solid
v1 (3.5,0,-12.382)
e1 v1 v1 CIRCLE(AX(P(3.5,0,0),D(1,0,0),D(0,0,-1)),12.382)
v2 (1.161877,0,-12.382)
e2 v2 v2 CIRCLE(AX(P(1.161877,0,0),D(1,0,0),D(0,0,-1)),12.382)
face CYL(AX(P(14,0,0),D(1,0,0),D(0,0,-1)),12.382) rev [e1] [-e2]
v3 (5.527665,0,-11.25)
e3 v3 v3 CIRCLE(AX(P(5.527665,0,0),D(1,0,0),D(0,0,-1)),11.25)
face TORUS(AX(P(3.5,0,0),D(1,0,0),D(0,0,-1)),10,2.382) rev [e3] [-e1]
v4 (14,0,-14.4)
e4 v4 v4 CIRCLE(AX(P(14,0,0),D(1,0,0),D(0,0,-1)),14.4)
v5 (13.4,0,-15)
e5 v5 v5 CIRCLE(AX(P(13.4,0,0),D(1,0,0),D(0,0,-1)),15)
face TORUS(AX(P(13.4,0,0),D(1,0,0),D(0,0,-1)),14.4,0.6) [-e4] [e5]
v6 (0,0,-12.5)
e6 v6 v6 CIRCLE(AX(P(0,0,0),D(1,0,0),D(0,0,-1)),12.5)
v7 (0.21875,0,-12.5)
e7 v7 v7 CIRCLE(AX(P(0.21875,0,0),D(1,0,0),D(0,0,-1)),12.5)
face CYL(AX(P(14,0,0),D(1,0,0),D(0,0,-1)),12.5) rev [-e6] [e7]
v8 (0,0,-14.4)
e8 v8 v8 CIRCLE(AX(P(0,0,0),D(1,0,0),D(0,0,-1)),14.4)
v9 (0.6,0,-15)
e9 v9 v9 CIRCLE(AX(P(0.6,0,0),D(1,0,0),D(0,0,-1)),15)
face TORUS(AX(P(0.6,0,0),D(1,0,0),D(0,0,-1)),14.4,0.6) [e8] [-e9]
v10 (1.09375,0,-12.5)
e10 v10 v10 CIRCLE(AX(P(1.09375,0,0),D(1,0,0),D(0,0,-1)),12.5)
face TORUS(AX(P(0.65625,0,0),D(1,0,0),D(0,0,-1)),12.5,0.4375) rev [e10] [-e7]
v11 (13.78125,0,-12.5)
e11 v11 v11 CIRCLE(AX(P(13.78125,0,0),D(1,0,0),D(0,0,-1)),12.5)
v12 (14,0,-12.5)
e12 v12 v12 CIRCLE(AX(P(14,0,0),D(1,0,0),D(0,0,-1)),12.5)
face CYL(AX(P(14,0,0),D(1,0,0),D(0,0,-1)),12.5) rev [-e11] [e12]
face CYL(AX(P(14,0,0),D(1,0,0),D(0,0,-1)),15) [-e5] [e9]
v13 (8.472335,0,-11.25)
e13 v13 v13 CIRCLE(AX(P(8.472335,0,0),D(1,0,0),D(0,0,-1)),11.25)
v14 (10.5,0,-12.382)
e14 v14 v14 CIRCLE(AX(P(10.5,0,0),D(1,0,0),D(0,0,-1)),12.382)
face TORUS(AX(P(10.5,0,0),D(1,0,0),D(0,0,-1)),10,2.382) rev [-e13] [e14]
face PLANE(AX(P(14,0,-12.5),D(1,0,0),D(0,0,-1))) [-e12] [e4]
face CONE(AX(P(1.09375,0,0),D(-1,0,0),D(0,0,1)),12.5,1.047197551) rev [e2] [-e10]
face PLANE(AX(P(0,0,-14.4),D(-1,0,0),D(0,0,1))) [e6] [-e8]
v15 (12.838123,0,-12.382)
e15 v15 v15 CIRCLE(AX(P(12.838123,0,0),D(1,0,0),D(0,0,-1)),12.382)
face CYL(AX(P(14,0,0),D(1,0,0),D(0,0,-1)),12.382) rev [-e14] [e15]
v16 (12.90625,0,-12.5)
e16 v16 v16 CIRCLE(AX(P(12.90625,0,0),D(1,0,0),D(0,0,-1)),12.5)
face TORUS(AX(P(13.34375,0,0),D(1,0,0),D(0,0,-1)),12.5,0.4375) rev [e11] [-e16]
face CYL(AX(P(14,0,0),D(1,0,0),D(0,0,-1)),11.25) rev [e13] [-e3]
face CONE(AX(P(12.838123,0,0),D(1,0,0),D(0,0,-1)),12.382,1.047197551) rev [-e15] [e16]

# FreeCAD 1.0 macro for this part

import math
import FreeCAD as App
import Part
import Sketcher
from FreeCAD import Vector
Q = App.Units.Quantity

doc = App.newDocument("Part")
body = doc.addObject("PartDesign::Body", "Body")

sketch1 = body.newObject("Sketcher::SketchObject", "Sketch")
sketch1.AttachmentSupport = (doc.getObject("XZ_Plane"), [""])
sketch1.MapMode = "FlatFace"
sketch1.addGeometry(Part.LineSegment(Vector(0, -12.5, 0), Vector(0.22, -12.5, 0)), False)
sketch1.addGeometry(Part.ArcOfCircle(Part.Circle(Vector(0.66, -12.5, 0), Vector(0, 0, 1), 0.44), math.radians(180), math.radians(360)), False)
sketch1.addGeometry(Part.LineSegment(Vector(1.09, -12.5, 0), Vector(1.16, -12.38, 0)), False)
sketch1.addGeometry(Part.LineSegment(Vector(1.16, -12.38, 0), Vector(3.5, -12.38, 0)), False)
sketch1.addGeometry(Part.ArcOfCircle(Part.Circle(Vector(3.5, -10, 0), Vector(0, 0, 1), 2.38), math.radians(-90), math.radians(-32)), False)
sketch1.addGeometry(Part.LineSegment(Vector(5.53, -11.25, 0), Vector(8.47, -11.25, 0)), False)
sketch1.addGeometry(Part.ArcOfCircle(Part.Circle(Vector(10.5, -10, 0), Vector(0, 0, 1), 2.38), math.radians(-148), math.radians(-90)), False)
sketch1.addGeometry(Part.LineSegment(Vector(10.5, -12.38, 0), Vector(12.84, -12.38, 0)), False)
sketch1.addGeometry(Part.LineSegment(Vector(12.84, -12.38, 0), Vector(12.91, -12.5, 0)), False)
sketch1.addGeometry(Part.ArcOfCircle(Part.Circle(Vector(13.34, -12.5, 0), Vector(0, 0, 1), 0.44), math.radians(180), math.radians(360)), False)
sketch1.addGeometry(Part.LineSegment(Vector(13.78, -12.5, 0), Vector(14, -12.5, 0)), False)
sketch1.addGeometry(Part.LineSegment(Vector(14, -12.5, 0), Vector(14, -14.4, 0)), False)
sketch1.addGeometry(Part.ArcOfCircle(Part.Circle(Vector(13.4, -14.4, 0), Vector(0, 0, 1), 0.6), math.radians(-90), math.radians(0)), False)
sketch1.addGeometry(Part.LineSegment(Vector(13.4, -15, 0), Vector(0.6, -15, 0)), False)
sketch1.addGeometry(Part.ArcOfCircle(Part.Circle(Vector(0.6, -14.4, 0), Vector(0, 0, 1), 0.6), math.radians(180), math.radians(270)), False)
sketch1.addGeometry(Part.LineSegment(Vector(0, -14.4, 0), Vector(0, -12.5, 0)), False)
sketch1.addConstraint(Sketcher.Constraint("Coincident", 0, 2, 1, 1))
sketch1.addConstraint(Sketcher.Constraint("Coincident", 1, 2, 2, 1))
sketch1.addConstraint(Sketcher.Constraint("Coincident", 2, 2, 3, 1))
sketch1.addConstraint(Sketcher.Constraint("Tangent", 3, 2, 4, 1))
sketch1.addConstraint(Sketcher.Constraint("Coincident", 4, 2, 5, 1))
sketch1.addConstraint(Sketcher.Constraint("Coincident", 5, 2, 6, 1))
sketch1.addConstraint(Sketcher.Constraint("Tangent", 6, 2, 7, 1))
sketch1.addConstraint(Sketcher.Constraint("Coincident", 7, 2, 8, 1))
sketch1.addConstraint(Sketcher.Constraint("Coincident", 8, 2, 9, 1))
sketch1.addConstraint(Sketcher.Constraint("Coincident", 9, 2, 10, 1))
sketch1.addConstraint(Sketcher.Constraint("Coincident", 10, 2, 11, 1))
sketch1.addConstraint(Sketcher.Constraint("Tangent", 11, 2, 12, 2))
sketch1.addConstraint(Sketcher.Constraint("Tangent", 12, 1, 13, 1))
sketch1.addConstraint(Sketcher.Constraint("Tangent", 13, 2, 14, 2))
sketch1.addConstraint(Sketcher.Constraint("Tangent", 14, 1, 15, 1))
sketch1.addConstraint(Sketcher.Constraint("Coincident", 15, 2, 0, 1))
sketch1.addConstraint(Sketcher.Constraint("Horizontal", 0))
sketch1.addConstraint(Sketcher.Constraint("Horizontal", 3))
sketch1.addConstraint(Sketcher.Constraint("Horizontal", 5))
sketch1.addConstraint(Sketcher.Constraint("Horizontal", 7))
sketch1.addConstraint(Sketcher.Constraint("Horizontal", 10))
sketch1.addConstraint(Sketcher.Constraint("Vertical", 11))
sketch1.addConstraint(Sketcher.Constraint("Horizontal", 13))
sketch1.addConstraint(Sketcher.Constraint("Vertical", 15))
sketch1.addConstraint(Sketcher.Constraint("Equal", 4, 6))
sketch1.addConstraint(Sketcher.Constraint("Equal", 1, 9))
sketch1.addConstraint(Sketcher.Constraint("Equal", 12, 14))
sketch1.addConstraint(Sketcher.Constraint("PointOnObject", 14, 1, -2))
sketch1.addConstraint(Sketcher.Constraint("Horizontal", 4, 3, 6, 3))
sketch1.addConstraint(Sketcher.Constraint("Horizontal", 1, 3, 9, 3))
sketch1.addConstraint(Sketcher.Constraint("Horizontal", 9, 3, 0, 2))
sketch1.addConstraint(Sketcher.Constraint("Horizontal", 0, 2, 1, 2))
sketch1.addConstraint(Sketcher.Constraint("Horizontal", 1, 2, 8, 2))
sketch1.addConstraint(Sketcher.Constraint("Horizontal", 8, 2, 9, 2))
sketch1.addConstraint(Sketcher.Constraint("Equal", 3, 7))
sketch1.addConstraint(Sketcher.Constraint("Equal", 0, 10))
sketch1.addConstraint(Sketcher.Constraint("Equal", 2, 8))
sketch1.addConstraint(Sketcher.Constraint("Radius", 12, 0.6))
sketch1.addConstraint(Sketcher.Constraint("Angle", 2, Q("60 deg")))
sketch1.addConstraint(Sketcher.Constraint("DistanceX", 13, 2, 13, 1, 12.8))
sketch1.addConstraint(Sketcher.Constraint("DistanceY", 11, 2, 11, 1, 1.9))
sketch1.addConstraint(Sketcher.Constraint("DistanceY", 4, 3, -1, 1, 10.0))
sketch1.addConstraint(Sketcher.Constraint("DistanceY", 12, 1, -1, 1, 15.0))
sketch1.addConstraint(Sketcher.Constraint("Radius", 4, 2.382))
sketch1.addConstraint(Sketcher.Constraint("DistanceX", 4, 3, 6, 3, 7.0))
sketch1.addConstraint(Sketcher.Constraint("Radius", 1, 0.4375))
sketch1.addConstraint(Sketcher.Constraint("DistanceY", 4, 2, -1, 1, 11.25))
sketch1.addConstraint(Sketcher.Constraint("DistanceX", 0, 2, 9, 3, 13.125))
revolution = body.newObject("PartDesign::Revolution", "Revolution")
revolution.Profile = sketch1
revolution.ReferenceAxis = (sketch1, ["H_Axis"])
revolution.Angle = 360

doc.recompute()
